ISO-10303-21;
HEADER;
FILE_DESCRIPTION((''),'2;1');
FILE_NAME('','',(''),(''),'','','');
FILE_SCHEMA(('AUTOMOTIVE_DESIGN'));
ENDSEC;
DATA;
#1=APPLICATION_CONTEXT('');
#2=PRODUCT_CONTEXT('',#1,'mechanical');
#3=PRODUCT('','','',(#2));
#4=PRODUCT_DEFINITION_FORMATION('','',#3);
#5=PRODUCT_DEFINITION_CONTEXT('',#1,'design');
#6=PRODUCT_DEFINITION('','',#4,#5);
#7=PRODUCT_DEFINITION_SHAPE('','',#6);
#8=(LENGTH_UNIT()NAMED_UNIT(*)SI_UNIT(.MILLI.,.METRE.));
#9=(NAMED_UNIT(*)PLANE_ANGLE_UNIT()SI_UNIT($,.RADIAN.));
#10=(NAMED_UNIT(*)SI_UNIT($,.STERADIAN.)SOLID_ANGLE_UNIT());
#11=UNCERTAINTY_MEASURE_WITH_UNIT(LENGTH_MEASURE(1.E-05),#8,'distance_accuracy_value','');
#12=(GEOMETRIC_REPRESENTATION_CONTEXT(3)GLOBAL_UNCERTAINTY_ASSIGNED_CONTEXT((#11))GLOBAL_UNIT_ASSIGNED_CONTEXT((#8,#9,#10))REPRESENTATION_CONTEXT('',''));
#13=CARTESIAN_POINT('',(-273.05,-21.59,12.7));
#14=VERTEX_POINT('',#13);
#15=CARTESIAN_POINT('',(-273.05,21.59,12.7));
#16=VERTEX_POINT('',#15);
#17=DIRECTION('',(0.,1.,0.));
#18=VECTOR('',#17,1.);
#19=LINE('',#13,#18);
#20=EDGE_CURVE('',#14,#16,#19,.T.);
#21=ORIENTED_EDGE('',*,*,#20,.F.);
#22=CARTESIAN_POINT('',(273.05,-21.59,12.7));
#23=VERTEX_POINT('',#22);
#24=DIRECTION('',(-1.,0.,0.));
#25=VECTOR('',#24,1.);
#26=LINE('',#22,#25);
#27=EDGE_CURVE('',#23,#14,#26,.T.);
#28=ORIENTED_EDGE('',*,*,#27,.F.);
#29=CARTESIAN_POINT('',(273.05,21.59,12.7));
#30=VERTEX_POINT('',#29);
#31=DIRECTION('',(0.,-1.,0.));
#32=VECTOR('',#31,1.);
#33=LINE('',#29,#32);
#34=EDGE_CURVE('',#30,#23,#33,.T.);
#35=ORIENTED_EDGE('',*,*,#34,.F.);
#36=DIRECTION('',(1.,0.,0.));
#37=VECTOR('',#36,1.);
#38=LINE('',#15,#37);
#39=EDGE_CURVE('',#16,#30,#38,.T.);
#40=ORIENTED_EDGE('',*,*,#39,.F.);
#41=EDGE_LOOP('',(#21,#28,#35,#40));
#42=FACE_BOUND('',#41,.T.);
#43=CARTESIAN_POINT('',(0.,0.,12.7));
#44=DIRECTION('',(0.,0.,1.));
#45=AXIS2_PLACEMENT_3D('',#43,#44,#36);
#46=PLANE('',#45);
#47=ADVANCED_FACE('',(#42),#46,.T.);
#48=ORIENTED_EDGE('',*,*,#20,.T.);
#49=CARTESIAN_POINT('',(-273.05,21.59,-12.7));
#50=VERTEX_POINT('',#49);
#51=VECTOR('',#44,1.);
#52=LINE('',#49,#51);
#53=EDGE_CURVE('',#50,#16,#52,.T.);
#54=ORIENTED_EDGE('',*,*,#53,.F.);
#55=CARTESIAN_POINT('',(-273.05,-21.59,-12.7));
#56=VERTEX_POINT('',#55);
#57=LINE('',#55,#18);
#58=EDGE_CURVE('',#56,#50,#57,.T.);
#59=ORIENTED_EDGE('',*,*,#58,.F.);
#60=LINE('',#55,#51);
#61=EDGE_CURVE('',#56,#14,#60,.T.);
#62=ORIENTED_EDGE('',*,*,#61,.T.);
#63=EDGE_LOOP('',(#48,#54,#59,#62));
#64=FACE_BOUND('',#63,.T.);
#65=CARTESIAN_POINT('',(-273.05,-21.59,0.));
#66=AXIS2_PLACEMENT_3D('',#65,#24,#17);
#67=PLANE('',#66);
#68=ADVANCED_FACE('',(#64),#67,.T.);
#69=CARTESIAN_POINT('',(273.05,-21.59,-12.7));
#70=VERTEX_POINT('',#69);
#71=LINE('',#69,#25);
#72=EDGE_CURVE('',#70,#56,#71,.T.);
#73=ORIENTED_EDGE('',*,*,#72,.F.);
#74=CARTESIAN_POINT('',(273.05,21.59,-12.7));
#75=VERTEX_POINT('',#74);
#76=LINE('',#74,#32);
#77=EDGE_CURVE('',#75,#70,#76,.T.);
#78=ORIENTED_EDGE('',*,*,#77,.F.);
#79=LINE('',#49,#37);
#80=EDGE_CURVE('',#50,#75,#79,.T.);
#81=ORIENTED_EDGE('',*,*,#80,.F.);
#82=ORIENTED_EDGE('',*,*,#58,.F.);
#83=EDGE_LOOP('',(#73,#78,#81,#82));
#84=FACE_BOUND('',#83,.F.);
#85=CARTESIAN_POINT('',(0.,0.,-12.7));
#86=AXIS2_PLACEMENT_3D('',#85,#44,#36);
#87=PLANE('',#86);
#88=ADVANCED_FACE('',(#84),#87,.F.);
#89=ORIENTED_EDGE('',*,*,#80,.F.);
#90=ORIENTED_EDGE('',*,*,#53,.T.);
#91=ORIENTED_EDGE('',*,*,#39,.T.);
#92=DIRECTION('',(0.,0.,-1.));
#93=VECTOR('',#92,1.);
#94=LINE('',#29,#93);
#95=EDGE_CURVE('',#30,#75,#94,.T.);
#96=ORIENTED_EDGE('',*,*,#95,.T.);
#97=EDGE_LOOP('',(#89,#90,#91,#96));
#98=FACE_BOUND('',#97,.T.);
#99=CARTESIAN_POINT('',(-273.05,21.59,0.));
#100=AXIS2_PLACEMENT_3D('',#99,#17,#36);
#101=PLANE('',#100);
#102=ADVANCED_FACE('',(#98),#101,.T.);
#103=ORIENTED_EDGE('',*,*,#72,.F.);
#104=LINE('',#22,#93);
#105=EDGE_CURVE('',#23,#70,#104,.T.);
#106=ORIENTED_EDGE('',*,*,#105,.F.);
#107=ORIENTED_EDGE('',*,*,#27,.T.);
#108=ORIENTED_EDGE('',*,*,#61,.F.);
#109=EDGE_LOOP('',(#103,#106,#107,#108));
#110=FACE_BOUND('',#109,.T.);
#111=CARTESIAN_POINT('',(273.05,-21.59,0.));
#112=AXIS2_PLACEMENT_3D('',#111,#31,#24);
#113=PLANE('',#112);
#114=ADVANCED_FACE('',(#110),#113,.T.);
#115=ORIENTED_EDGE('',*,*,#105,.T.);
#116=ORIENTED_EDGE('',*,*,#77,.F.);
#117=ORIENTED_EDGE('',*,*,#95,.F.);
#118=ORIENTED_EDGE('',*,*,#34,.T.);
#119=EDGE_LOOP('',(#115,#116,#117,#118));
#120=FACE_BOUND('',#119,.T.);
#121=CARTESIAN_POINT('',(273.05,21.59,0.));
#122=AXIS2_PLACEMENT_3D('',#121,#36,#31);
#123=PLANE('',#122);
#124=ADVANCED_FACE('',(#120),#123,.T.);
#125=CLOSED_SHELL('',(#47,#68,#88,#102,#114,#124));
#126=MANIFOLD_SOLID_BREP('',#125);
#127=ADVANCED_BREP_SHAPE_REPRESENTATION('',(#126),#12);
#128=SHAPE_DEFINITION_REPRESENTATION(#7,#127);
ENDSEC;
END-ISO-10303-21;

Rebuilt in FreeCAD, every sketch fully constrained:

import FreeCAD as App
import Part
import Sketcher

V = App.Vector
Q = App.Units.Quantity


def add_polygon(sketch, points):
    """Adds a closed chain of lines whose ends are joined by coincident constraints."""
    first, n = sketch.GeometryCount, len(points)
    for a, b in zip(points, points[1:] + points[:1]):
        sketch.addGeometry(Part.LineSegment(App.Vector(*a, 0), App.Vector(*b, 0)), False)
    for i in range(n):
        sketch.addConstraint(Sketcher.Constraint("Coincident", first + i, 2, first + (i + 1) % n, 1))

doc = App.newDocument("Part")
body = doc.addObject("PartDesign::Body", "Body")

# Sketch on XY plane
sketch1 = body.newObject("Sketcher::SketchObject", "Sketch")
sketch1.AttachmentSupport = (doc.getObject("XY_Plane"), [""])
sketch1.MapMode = "FlatFace"
add_polygon(sketch1, [(273, 22), (-273, 22), (-273, -22), (273, -22)])  # lines 0-3
sketch1.addConstraint(Sketcher.Constraint("Horizontal", 0))
sketch1.addConstraint(Sketcher.Constraint("Vertical", 1))
sketch1.addConstraint(Sketcher.Constraint("Horizontal", 2))
sketch1.addConstraint(Sketcher.Constraint("Vertical", 3))
sketch1.addConstraint(Sketcher.Constraint("Symmetric", 0, 2, 2, 2, -1, 1))
sketch1.addConstraint(Sketcher.Constraint("DistanceX", 0, 2, 0, 1, Q("21.5 in")))
sketch1.addConstraint(Sketcher.Constraint("DistanceY", 1, 2, 1, 1, Q("1.7 in")))
pad1 = body.newObject("PartDesign::Pad", "Pad")
pad1.Profile = sketch1
pad1.Length = Q("1 in")
pad1.Midplane = True

doc.recompute()
